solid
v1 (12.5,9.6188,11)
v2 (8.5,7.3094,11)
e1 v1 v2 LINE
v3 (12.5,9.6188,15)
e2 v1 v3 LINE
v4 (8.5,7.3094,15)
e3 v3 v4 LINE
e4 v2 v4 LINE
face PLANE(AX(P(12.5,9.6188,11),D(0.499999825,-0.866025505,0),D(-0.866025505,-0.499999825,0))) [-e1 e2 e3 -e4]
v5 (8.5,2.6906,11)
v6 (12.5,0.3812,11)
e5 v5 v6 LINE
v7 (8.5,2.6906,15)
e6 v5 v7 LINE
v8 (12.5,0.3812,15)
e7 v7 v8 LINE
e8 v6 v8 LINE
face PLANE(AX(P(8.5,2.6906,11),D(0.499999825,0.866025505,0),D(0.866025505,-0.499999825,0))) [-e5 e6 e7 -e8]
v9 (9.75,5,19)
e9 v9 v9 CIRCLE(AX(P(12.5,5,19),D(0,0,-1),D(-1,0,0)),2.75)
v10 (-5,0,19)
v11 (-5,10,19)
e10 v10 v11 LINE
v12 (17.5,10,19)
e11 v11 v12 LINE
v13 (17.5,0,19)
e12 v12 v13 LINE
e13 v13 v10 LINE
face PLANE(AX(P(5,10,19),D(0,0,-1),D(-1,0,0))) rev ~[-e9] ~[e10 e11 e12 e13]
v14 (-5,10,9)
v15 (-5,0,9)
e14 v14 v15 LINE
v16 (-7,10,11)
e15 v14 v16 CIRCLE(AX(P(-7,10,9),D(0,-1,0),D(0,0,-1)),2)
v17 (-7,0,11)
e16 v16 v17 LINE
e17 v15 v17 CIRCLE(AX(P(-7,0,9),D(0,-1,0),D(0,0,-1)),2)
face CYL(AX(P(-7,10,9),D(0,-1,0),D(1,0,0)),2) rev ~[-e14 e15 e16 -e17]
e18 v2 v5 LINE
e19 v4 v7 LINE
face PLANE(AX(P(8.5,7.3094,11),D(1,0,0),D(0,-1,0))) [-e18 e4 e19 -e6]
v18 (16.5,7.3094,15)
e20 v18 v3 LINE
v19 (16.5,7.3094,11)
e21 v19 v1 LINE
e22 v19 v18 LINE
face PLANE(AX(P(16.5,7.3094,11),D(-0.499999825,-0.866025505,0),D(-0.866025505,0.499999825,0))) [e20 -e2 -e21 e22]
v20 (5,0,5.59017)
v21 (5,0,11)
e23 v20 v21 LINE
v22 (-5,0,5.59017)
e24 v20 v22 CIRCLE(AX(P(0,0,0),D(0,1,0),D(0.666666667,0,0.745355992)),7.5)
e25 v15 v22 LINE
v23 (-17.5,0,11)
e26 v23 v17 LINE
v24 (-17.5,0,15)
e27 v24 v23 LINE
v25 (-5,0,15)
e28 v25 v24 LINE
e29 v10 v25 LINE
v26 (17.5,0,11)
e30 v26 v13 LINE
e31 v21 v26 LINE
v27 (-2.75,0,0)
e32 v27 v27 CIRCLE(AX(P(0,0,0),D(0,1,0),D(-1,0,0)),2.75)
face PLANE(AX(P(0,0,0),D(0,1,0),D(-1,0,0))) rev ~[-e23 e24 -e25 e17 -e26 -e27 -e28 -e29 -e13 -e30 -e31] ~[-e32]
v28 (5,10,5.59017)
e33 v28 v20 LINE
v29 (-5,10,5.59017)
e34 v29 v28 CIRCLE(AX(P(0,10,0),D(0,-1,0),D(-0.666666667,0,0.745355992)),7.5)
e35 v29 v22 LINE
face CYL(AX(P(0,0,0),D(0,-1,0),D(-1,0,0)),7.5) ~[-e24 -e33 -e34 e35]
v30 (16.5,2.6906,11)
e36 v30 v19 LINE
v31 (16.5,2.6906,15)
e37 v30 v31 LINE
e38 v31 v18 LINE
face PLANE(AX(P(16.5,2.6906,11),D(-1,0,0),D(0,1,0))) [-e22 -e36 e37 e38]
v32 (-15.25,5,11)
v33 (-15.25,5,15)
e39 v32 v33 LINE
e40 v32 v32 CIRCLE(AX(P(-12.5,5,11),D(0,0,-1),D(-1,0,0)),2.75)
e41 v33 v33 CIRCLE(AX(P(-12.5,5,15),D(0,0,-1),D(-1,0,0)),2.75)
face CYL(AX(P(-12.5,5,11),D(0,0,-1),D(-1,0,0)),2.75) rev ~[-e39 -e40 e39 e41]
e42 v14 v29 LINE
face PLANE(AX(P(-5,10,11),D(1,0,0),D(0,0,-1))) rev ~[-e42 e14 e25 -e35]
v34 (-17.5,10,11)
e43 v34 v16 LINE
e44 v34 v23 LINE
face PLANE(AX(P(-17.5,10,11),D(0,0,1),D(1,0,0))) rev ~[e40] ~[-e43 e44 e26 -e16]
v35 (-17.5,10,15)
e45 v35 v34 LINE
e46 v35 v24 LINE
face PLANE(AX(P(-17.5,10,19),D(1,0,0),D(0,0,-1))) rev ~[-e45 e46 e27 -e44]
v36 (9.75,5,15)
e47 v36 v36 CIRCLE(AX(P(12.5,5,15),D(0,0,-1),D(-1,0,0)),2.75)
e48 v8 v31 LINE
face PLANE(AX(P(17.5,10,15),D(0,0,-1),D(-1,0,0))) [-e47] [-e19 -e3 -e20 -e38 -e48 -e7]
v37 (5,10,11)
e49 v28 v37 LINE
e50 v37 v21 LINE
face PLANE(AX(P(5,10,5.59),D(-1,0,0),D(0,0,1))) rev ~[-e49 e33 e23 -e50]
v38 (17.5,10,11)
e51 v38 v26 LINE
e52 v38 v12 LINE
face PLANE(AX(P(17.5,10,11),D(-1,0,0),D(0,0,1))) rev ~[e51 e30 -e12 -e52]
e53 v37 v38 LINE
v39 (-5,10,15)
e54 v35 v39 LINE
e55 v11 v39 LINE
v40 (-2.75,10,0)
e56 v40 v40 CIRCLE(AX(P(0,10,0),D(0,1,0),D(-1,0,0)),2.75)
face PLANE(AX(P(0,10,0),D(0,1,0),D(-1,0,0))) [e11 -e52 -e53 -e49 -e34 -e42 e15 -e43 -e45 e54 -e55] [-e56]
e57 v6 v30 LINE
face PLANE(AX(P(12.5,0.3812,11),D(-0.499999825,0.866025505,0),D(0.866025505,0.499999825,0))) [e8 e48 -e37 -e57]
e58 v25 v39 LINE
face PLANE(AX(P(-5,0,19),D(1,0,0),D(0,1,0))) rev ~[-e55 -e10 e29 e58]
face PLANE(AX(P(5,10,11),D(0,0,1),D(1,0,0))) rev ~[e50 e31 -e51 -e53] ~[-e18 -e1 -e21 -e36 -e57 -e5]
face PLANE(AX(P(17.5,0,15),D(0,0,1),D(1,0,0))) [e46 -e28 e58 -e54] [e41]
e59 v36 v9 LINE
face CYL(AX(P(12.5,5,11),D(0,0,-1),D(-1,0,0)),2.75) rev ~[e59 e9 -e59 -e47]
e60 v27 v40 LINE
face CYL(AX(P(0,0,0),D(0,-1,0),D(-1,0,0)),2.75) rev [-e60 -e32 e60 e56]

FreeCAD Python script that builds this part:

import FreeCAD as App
import Part
import Sketcher
Q = App.Units.Quantity


def edges_at(feature, points):
    """Names of the edges that pass closest to the given points."""
    edges = feature.Shape.Edges
    near = lambda p: min(range(len(edges)), key=lambda i: edges[i].distToShape(Part.Vertex(*p))[0])
    return sorted({f"Edge{near(p) + 1}" for p in points})


def add_polygon(sketch, points):
    """Adds a closed chain of lines whose ends are joined by coincident constraints."""
    first, n = sketch.GeometryCount, len(points)
    for a, b in zip(points, points[1:] + points[:1]):
        sketch.addGeometry(Part.LineSegment(App.Vector(*a, 0), App.Vector(*b, 0)), False)
    for i in range(n):
        sketch.addConstraint(Sketcher.Constraint("Coincident", first + i, 2, first + (i + 1) % n, 1))

doc = App.newDocument("Part")
body = doc.addObject("PartDesign::Body", "Body")

sketch1 = body.newObject("Sketcher::SketchObject", "Sketch")
sketch1.AttachmentSupport = (doc.getObject("XZ_Plane"), [""])
sketch1.MapMode = "FlatFace"
sketch1.addGeometry(Part.Circle(App.Vector(0, 0, 0), App.Vector(0, 0, 1), 7.5), False)
sketch1.addGeometry(Part.Circle(App.Vector(0, 0, 0), App.Vector(0, 0, 1), 2.75), False)
sketch1.addConstraint(Sketcher.Constraint("Coincident", 0, 3, -1, 1))
sketch1.addConstraint(Sketcher.Constraint("Coincident", 1, 3, -1, 1))
sketch1.addConstraint(Sketcher.Constraint("Diameter", 0, Q("15 mm")))
sketch1.addConstraint(Sketcher.Constraint("Diameter", 1, Q("5.5 mm")))
pad1 = body.newObject("PartDesign::Pad", "Pad")
pad1.Profile = sketch1
pad1.Length = 10
pad1.Reversed = True

sketch2 = body.newObject("Sketcher::SketchObject", "Sketch001")
sketch2.AttachmentSupport = (doc.getObject("XZ_Plane"), [""])
sketch2.MapMode = "FlatFace"
sketch2.AttachmentOffset = App.Placement(App.Vector(0, 0, -10), App.Rotation())
add_polygon(sketch2, [(-5, 5.59), (5, 5.59), (5, 11), (17.5, 11), (17.5, 19), (-17.5, 19), (-17.5, 11), (-5, 11)])
sketch2.addConstraint(Sketcher.Constraint("Horizontal", 0))
sketch2.addConstraint(Sketcher.Constraint("Vertical", 1))
sketch2.addConstraint(Sketcher.Constraint("Horizontal", 2))
sketch2.addConstraint(Sketcher.Constraint("Vertical", 3))
sketch2.addConstraint(Sketcher.Constraint("Horizontal", 4))
sketch2.addConstraint(Sketcher.Constraint("Vertical", 5))
sketch2.addConstraint(Sketcher.Constraint("Horizontal", 6))
sketch2.addConstraint(Sketcher.Constraint("Vertical", 7))
sketch2.addConstraint(Sketcher.Constraint("Symmetric", 2, 2, 5, 2, -2))
sketch2.addConstraint(Sketcher.Constraint("Equal", 2, 6))
sketch2.addConstraint(Sketcher.Constraint("DistanceX", 0, 1, 0, 2, Q("10 mm")))
sketch2.addConstraint(Sketcher.Constraint("DistanceX", 4, 2, 4, 1, Q("35 mm")))
sketch2.addConstraint(Sketcher.Constraint("DistanceY", 3, 1, 3, 2, Q("8 mm")))
sketch2.addConstraint(Sketcher.Constraint("DistanceY", -1, 1, 1, 2, Q("11 mm")))
sketch2.addConstraint(Sketcher.Constraint("DistanceY", 1, 1, 1, 2, Q("5.41 mm")))
pad2 = body.newObject("PartDesign::Pad", "Pad001")
pad2.Profile = sketch2
pad2.Length = 10

sketch3 = body.newObject("Sketcher::SketchObject", "Sketch002")
sketch3.AttachmentSupport = (doc.getObject("XY_Plane"), [""])
sketch3.MapMode = "FlatFace"
sketch3.AttachmentOffset = App.Placement(App.Vector(0, 0, 11), App.Rotation())
sketch3.addGeometry(Part.Circle(App.Vector(12.5, 5, 0), App.Vector(0, 0, 1), 2.75), False)
sketch3.addGeometry(Part.Circle(App.Vector(-12.5, 5, 0), App.Vector(0, 0, 1), 2.75), False)
sketch3.addConstraint(Sketcher.Constraint("Equal", 0, 1))
sketch3.addConstraint(Sketcher.Constraint("Symmetric", 0, 3, 1, 3, -2))
sketch3.addConstraint(Sketcher.Constraint("Diameter", 0, Q("5.5 mm")))
sketch3.addConstraint(Sketcher.Constraint("DistanceY", -1, 1, 0, 3, Q("5 mm")))
sketch3.addConstraint(Sketcher.Constraint("DistanceX", 1, 3, 0, 3, Q("25 mm")))
pocket1 = body.newObject("PartDesign::Pocket", "Pocket")
pocket1.Profile = sketch3
pocket1.Type = "ThroughAll"
pocket1.Reversed = True
doc.recompute()

fillet = body.newObject("PartDesign::Fillet", "Fillet")
fillet.Base = (pocket1, edges_at(pocket1, [(-5, 5, 11)]))
fillet.Radius = 2

sketch4 = body.newObject("Sketcher::SketchObject", "Sketch003")
sketch4.AttachmentSupport = (doc.getObject("XY_Plane"), [""])
sketch4.MapMode = "FlatFace"
sketch4.AttachmentOffset = App.Placement(App.Vector(0, 0, 11), App.Rotation())
add_polygon(sketch4, [(16.5, 2.6906), (12.5, 0.3812), (8.5, 2.6906), (8.5, 7.3094), (12.5, 9.6188), (16.5, 7.3094)])
sketch4.addGeometry(Part.Circle(App.Vector(12.5, 5, 0), App.Vector(0, 0, 1), 2.75), False)
sketch4.addConstraint(Sketcher.Constraint("Vertical", 2))
sketch4.addConstraint(Sketcher.Constraint("Vertical", 5))
sketch4.addConstraint(Sketcher.Constraint("Parallel", 0, 3))
sketch4.addConstraint(Sketcher.Constraint("Parallel", 1, 4))
sketch4.addConstraint(Sketcher.Constraint("Horizontal", 2, 2, 4, 2))
sketch4.addConstraint(Sketcher.Constraint("Horizontal", 1, 2, 5, 2))
sketch4.addConstraint(Sketcher.Constraint("Vertical", 6, 3, 0, 2))
sketch4.addConstraint(Sketcher.Constraint("Vertical", 0, 2, 3, 2))
sketch4.addConstraint(Sketcher.Constraint("DistanceX", 2, 2, 4, 2, Q("8 mm")))
sketch4.addConstraint(Sketcher.Constraint("Diameter", 6, Q("5.5 mm")))
sketch4.addConstraint(Sketcher.Constraint("Angle", 0, Q("-150 deg")))
sketch4.addConstraint(Sketcher.Constraint("DistanceY", -1, 1, 6, 3, Q("5 mm")))
sketch4.addConstraint(Sketcher.Constraint("DistanceX", -1, 1, 6, 3, Q("12.5 mm")))
sketch4.addConstraint(Sketcher.Constraint("DistanceY", 2, 1, 2, 2, Q("4.6188 mm")))
sketch4.addConstraint(Sketcher.Constraint("DistanceY", -1, 1, 0, 2, Q("0.3812 mm")))
pocket2 = body.newObject("PartDesign::Pocket", "Pocket001")
pocket2.Profile = sketch4
pocket2.Length = 4
pocket2.Reversed = True

sketch5 = body.newObject("Sketcher::SketchObject", "Sketch004")
sketch5.AttachmentSupport = (doc.getObject("XY_Plane"), [""])
sketch5.MapMode = "FlatFace"
sketch5.AttachmentOffset = App.Placement(App.Vector(0, 0, 19), App.Rotation())
add_polygon(sketch5, [(-17.5, 0), (-5, 0), (-5, 10), (-17.5, 10)])
sketch5.addConstraint(Sketcher.Constraint("Horizontal", 0))
sketch5.addConstraint(Sketcher.Constraint("Vertical", 1))
sketch5.addConstraint(Sketcher.Constraint("Horizontal", 2))
sketch5.addConstraint(Sketcher.Constraint("Vertical", 3))
sketch5.addConstraint(Sketcher.Constraint("PointOnObject", 0, 2, -1))
sketch5.addConstraint(Sketcher.Constraint("DistanceY", 1, 1, 1, 2, Q("10 mm")))
sketch5.addConstraint(Sketcher.Constraint("DistanceX", 0, 1, 0, 2, Q("12.5 mm")))
sketch5.addConstraint(Sketcher.Constraint("DistanceX", 0, 2, -1, 1, Q("5 mm")))
pocket3 = body.newObject("PartDesign::Pocket", "Pocket002")
pocket3.Profile = sketch5
pocket3.Length = 4

doc.recompute()
